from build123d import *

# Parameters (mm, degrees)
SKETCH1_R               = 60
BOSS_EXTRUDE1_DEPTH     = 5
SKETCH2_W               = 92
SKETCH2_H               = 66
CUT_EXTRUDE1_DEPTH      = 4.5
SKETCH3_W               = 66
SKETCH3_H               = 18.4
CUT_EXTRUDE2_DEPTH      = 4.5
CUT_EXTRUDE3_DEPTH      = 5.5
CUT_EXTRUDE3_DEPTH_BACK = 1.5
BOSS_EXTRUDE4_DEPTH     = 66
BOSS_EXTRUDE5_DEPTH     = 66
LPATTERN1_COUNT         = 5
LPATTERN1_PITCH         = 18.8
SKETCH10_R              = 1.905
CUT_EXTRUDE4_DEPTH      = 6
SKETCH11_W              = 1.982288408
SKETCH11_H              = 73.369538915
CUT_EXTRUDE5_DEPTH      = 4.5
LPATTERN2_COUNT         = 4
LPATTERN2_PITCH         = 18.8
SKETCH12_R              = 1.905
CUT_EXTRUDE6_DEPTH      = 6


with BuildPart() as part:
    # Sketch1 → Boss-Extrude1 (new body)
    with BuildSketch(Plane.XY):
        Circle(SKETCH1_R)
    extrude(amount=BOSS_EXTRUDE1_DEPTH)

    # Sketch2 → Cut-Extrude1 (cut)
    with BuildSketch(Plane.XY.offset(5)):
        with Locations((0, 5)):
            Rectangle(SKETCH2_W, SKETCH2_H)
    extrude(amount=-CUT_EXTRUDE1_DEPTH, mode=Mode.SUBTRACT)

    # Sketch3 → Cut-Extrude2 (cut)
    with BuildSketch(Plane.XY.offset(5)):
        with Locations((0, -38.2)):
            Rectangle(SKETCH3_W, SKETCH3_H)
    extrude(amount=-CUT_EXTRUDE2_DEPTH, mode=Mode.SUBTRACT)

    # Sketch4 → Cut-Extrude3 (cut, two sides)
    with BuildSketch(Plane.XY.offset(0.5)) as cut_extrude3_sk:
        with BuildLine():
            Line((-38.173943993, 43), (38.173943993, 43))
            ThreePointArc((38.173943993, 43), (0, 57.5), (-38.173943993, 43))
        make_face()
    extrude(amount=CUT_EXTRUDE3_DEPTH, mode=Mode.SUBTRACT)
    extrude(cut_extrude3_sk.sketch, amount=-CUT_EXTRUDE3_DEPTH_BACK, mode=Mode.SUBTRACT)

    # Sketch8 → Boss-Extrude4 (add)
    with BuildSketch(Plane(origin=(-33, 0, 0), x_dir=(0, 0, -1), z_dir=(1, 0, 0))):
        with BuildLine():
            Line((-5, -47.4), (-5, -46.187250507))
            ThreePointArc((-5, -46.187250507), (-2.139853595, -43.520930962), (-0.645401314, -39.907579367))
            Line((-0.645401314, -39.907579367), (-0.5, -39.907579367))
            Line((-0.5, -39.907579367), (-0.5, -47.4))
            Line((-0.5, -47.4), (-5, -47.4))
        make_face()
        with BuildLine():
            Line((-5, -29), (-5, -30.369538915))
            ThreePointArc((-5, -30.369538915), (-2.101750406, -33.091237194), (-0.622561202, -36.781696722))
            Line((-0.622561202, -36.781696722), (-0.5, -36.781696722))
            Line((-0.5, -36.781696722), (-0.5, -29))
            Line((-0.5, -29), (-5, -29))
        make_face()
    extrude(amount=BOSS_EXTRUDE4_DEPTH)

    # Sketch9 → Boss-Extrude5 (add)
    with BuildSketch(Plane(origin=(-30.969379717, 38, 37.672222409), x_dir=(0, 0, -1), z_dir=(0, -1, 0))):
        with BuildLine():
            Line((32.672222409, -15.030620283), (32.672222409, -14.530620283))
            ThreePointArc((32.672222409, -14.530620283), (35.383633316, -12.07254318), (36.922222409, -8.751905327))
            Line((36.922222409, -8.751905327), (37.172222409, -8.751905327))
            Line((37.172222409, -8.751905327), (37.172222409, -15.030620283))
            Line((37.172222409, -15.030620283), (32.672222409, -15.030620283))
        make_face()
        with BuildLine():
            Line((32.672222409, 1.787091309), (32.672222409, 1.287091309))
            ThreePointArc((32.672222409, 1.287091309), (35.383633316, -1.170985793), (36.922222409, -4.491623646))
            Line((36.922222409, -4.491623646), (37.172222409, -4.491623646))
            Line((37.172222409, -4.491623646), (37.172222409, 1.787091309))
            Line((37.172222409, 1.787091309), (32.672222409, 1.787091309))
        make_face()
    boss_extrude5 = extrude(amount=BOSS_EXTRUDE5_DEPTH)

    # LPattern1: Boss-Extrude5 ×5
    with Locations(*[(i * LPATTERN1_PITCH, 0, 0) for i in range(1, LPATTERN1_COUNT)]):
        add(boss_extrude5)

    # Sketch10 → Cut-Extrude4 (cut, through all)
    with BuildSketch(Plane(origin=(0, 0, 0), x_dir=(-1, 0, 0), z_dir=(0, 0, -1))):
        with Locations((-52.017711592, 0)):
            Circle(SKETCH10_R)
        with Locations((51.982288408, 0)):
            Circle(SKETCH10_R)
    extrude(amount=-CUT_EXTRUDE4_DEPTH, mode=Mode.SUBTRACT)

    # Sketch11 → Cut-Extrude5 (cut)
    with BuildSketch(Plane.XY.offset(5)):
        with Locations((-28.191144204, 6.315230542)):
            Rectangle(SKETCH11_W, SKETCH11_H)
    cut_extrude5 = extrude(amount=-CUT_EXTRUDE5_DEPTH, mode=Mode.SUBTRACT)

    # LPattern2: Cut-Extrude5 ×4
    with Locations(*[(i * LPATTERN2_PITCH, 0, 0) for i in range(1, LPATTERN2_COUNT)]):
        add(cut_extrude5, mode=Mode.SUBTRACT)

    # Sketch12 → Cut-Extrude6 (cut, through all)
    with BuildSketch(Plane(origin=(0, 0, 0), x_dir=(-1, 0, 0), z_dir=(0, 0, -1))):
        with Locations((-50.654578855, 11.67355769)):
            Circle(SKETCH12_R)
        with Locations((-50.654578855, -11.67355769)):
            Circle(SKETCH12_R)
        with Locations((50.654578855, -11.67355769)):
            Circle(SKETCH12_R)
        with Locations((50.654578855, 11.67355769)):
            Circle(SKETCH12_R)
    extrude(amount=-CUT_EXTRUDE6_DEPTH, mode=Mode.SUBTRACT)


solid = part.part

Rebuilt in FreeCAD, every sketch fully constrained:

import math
import FreeCAD as App
import Part
import Sketcher
Q = App.Units.Quantity

doc = App.newDocument("Part")
body = doc.addObject("PartDesign::Body", "Body")

# Sketch on XY plane
sketch1 = doc.addObject("Sketcher::SketchObject", "Sketch")
body.addObject(sketch1)
sketch1.AttachmentSupport = (doc.XY_Plane, [""])
sketch1.MapMode = "FlatFace"
sketch1.addGeometry(Part.Circle(App.Vector(0, 0, 0), App.Vector(0, 0, 1), 60), False)
sketch1.addConstraint([
    Sketcher.Constraint("Coincident", 0, 3, -1, 1),
    Sketcher.Constraint("Diameter", 0, Q("120 mm")),
])
pad1 = doc.addObject("PartDesign::Pad", "Pad")
body.addObject(pad1)
pad1.Profile = sketch1
pad1.Length = 5

# Sketch on XY plane
sketch2 = doc.addObject("Sketcher::SketchObject", "Sketch001")
body.addObject(sketch2)
sketch2.AttachmentSupport = (doc.XY_Plane, [""])
sketch2.MapMode = "FlatFace"
sketch2.AttachmentOffset = App.Placement(App.Vector(0, 0, 5), App.Rotation())
sketch2.addGeometry([
    Part.LineSegment(App.Vector(-46, 38, 0), App.Vector(-46, -28, 0)),
    Part.LineSegment(App.Vector(-46, -28, 0), App.Vector(46, -28, 0)),
    Part.LineSegment(App.Vector(46, -28, 0), App.Vector(46, 38, 0)),
    Part.LineSegment(App.Vector(46, 38, 0), App.Vector(-46, 38, 0)),
], False)
sketch2.addConstraint([
    Sketcher.Constraint("Coincident", 0, 2, 1, 1),
    Sketcher.Constraint("Coincident", 1, 2, 2, 1),
    Sketcher.Constraint("Coincident", 2, 2, 3, 1),
    Sketcher.Constraint("Coincident", 3, 2, 0, 1),
    Sketcher.Constraint("Vertical", 0),
    Sketcher.Constraint("Horizontal", 1),
    Sketcher.Constraint("Vertical", 2),
    Sketcher.Constraint("Horizontal", 3),
    Sketcher.Constraint("DistanceX", 1, 1, 1, 2, Q("92 mm")),
    Sketcher.Constraint("DistanceY", 0, 2, 0, 1, Q("66 mm")),
    Sketcher.Constraint("DistanceX", 0, 2, -1, 1, Q("46 mm")),
    Sketcher.Constraint("DistanceY", 0, 2, -1, 1, Q("28 mm")),
])
pocket1 = doc.addObject("PartDesign::Pocket", "Pocket")
body.addObject(pocket1)
pocket1.Profile = sketch2
pocket1.Length = 4.5

# Sketch on XY plane
sketch3 = doc.addObject("Sketcher::SketchObject", "Sketch002")
body.addObject(sketch3)
sketch3.AttachmentSupport = (doc.XY_Plane, [""])
sketch3.MapMode = "FlatFace"
sketch3.AttachmentOffset = App.Placement(App.Vector(0, 0, 5), App.Rotation())
sketch3.addGeometry([
    Part.LineSegment(App.Vector(-33, -29, 0), App.Vector(-33, -47, 0)),
    Part.LineSegment(App.Vector(-33, -47, 0), App.Vector(33, -47, 0)),
    Part.LineSegment(App.Vector(33, -47, 0), App.Vector(33, -29, 0)),
    Part.LineSegment(App.Vector(33, -29, 0), App.Vector(-33, -29, 0)),
], False)
sketch3.addConstraint([
    Sketcher.Constraint("Coincident", 0, 2, 1, 1),
    Sketcher.Constraint("Coincident", 1, 2, 2, 1),
    Sketcher.Constraint("Coincident", 2, 2, 3, 1),
    Sketcher.Constraint("Coincident", 3, 2, 0, 1),
    Sketcher.Constraint("Vertical", 0),
    Sketcher.Constraint("Horizontal", 1),
    Sketcher.Constraint("Vertical", 2),
    Sketcher.Constraint("Horizontal", 3),
    Sketcher.Constraint("DistanceX", 1, 1, 1, 2, Q("66 mm")),
    Sketcher.Constraint("DistanceY", 0, 2, 0, 1, Q("18.4 mm")),
    Sketcher.Constraint("DistanceX", 0, 2, -1, 1, Q("33 mm")),
    Sketcher.Constraint("DistanceY", 2, 2, -1, 1, Q("29 mm")),
])
pocket2 = doc.addObject("PartDesign::Pocket", "Pocket001")
body.addObject(pocket2)
pocket2.Profile = sketch3
pocket2.Length = 4.5

# Sketch on XY plane
sketch4 = doc.addObject("Sketcher::SketchObject", "Sketch003")
body.addObject(sketch4)
sketch4.AttachmentSupport = (doc.XY_Plane, [""])
sketch4.MapMode = "FlatFace"
sketch4.AttachmentOffset = App.Placement(App.Vector(0, 0, 0.5), App.Rotation())
sketch4.addGeometry([
    Part.LineSegment(App.Vector(-38, 43, 0), App.Vector(38, 43, 0)),
    Part.ArcOfCircle(Part.Circle(App.Vector(0, 0, 0), App.Vector(0, 0, 1), 57), math.radians(48), math.radians(132)),
], False)
sketch4.addConstraint([
    Sketcher.Constraint("Coincident", 0, 1, 1, 2),
    Sketcher.Constraint("Coincident", 1, 1, 0, 2),
    Sketcher.Constraint("Horizontal", 0),
    Sketcher.Constraint("Coincident", 1, 3, -1, 1),
    Sketcher.Constraint("Radius", 1, Q("57.5 mm")),
    Sketcher.Constraint("DistanceY", -1, 1, 0, 1, Q("43 mm")),
])
pocket3 = doc.addObject("PartDesign::Pocket", "Pocket002")
body.addObject(pocket3)
pocket3.Profile = sketch4
pocket3.Type = "ThroughAll"
pocket3.Midplane = True

# Sketch on YZ plane
sketch5 = doc.addObject("Sketcher::SketchObject", "Sketch004")
body.addObject(sketch5)
sketch5.AttachmentSupport = (doc.YZ_Plane, [""])
sketch5.MapMode = "FlatFace"
sketch5.AttachmentOffset = App.Placement(App.Vector(0, 0, -33), App.Rotation())
sketch5.addGeometry([
    Part.LineSegment(App.Vector(-46.19, 5, 0), App.Vector(-47.4, 5, 0)),  # 0
    Part.LineSegment(App.Vector(-47.4, 5, 0), App.Vector(-47.4, 0.5, 0)),  # 1
    Part.LineSegment(App.Vector(-47.4, 0.5, 0), App.Vector(-39.91, 0.5, 0)),  # 2
    Part.LineSegment(App.Vector(-39.91, 0.5, 0), App.Vector(-39.91, 0.65, 0)),  # 3
    Part.ArcOfCircle(Part.Circle(App.Vector(-38.28, 9.7, 0), App.Vector(0, 0, 1), 9.2), math.radians(-149), math.radians(-100)),  # 4
    Part.LineSegment(App.Vector(-29, 5, 0), App.Vector(-30.37, 5, 0)),  # 5
    Part.ArcOfCircle(Part.Circle(App.Vector(-38.28, 9.7, 0), App.Vector(0, 0, 1), 9.2), math.radians(-81), math.radians(-31)),  # 6
    Part.LineSegment(App.Vector(-36.78, 0.62, 0), App.Vector(-36.78, 0.5, 0)),  # 7
    Part.LineSegment(App.Vector(-36.78, 0.5, 0), App.Vector(-29, 0.5, 0)),  # 8
    Part.LineSegment(App.Vector(-29, 0.5, 0), App.Vector(-29, 5, 0)),  # 9
], False)
sketch5.addConstraint([
    Sketcher.Constraint("Coincident", 0, 2, 1, 1),
    Sketcher.Constraint("Coincident", 1, 2, 2, 1),
    Sketcher.Constraint("Coincident", 2, 2, 3, 1),
    Sketcher.Constraint("Coincident", 3, 2, 4, 2),
    Sketcher.Constraint("Coincident", 4, 1, 0, 1),
    Sketcher.Constraint("Coincident", 5, 2, 6, 2),
    Sketcher.Constraint("Coincident", 6, 1, 7, 1),
    Sketcher.Constraint("Coincident", 7, 2, 8, 1),
    Sketcher.Constraint("Coincident", 8, 2, 9, 1),
    Sketcher.Constraint("Coincident", 9, 2, 5, 1),
    Sketcher.Constraint("Horizontal", 0),
    Sketcher.Constraint("Vertical", 1),
    Sketcher.Constraint("Horizontal", 2),
    Sketcher.Constraint("Vertical", 3),
    Sketcher.Constraint("Horizontal", 5),
    Sketcher.Constraint("Vertical", 7),
    Sketcher.Constraint("Horizontal", 8),
    Sketcher.Constraint("Vertical", 9),
    Sketcher.Constraint("Coincident", 6, 3, 4, 3),
    Sketcher.Constraint("Equal", 4, 6),
    Sketcher.Constraint("Horizontal", 4, 1, 5, 2),
    Sketcher.Constraint("Horizontal", 2, 2, 7, 2),
    Sketcher.Constraint("Radius", 4, Q("9.2 mm")),
    Sketcher.Constraint("DistanceY", 1, 2, 1, 1, Q("4.5 mm")),
    Sketcher.Constraint("DistanceY", -1, 1, 0, 2, Q("5 mm")),
    Sketcher.Constraint("DistanceX", 8, 2, -1, 1, Q("29 mm")),
    Sketcher.Constraint("DistanceY", -1, 1, 4, 3, Q("9.7 mm")),
    Sketcher.Constraint("DistanceX", 0, 2, -1, 1, Q("47.4 mm")),
    Sketcher.Constraint("DistanceY", 3, 1, 3, 2, Q("0.145401 mm")),
    Sketcher.Constraint("DistanceX", 0, 2, 0, 1, Q("1.212749 mm")),
    Sketcher.Constraint("DistanceY", 7, 2, 7, 1, Q("0.122561 mm")),
])
pad2 = doc.addObject("PartDesign::Pad", "Pad001")
body.addObject(pad2)
pad2.Profile = sketch5
pad2.Length = 66

# Sketch on XZ plane
sketch6 = doc.addObject("Sketcher::SketchObject", "Sketch005")
body.addObject(sketch6)
sketch6.AttachmentSupport = (doc.XZ_Plane, [""])
sketch6.MapMode = "FlatFace"
sketch6.AttachmentOffset = App.Placement(App.Vector(0, 0, -38), App.Rotation())
sketch6.addGeometry([
    Part.LineSegment(App.Vector(-45.5, 5, 0), App.Vector(-46, 5, 0)),  # 0
    Part.LineSegment(App.Vector(-46, 5, 0), App.Vector(-46, 0.5, 0)),  # 1
    Part.LineSegment(App.Vector(-46, 0.5, 0), App.Vector(-39.72, 0.5, 0)),  # 2
    Part.LineSegment(App.Vector(-39.72, 0.5, 0), App.Vector(-39.72, 0.75, 0)),  # 3
    Part.ArcOfCircle(Part.Circle(App.Vector(-37.59, 9.7, 0), App.Vector(0, 0, 1), 9.2), math.radians(-149), math.radians(-103)),  # 4
    Part.LineSegment(App.Vector(-29.18, 5, 0), App.Vector(-29.68, 5, 0)),  # 5
    Part.ArcOfCircle(Part.Circle(App.Vector(-37.59, 9.7, 0), App.Vector(0, 0, 1), 9.2), math.radians(-77), math.radians(-31)),  # 6
    Part.LineSegment(App.Vector(-35.46, 0.75, 0), App.Vector(-35.46, 0.5, 0)),  # 7
    Part.LineSegment(App.Vector(-35.46, 0.5, 0), App.Vector(-29.18, 0.5, 0)),  # 8
    Part.LineSegment(App.Vector(-29.18, 0.5, 0), App.Vector(-29.18, 5, 0)),  # 9
], False)
sketch6.addConstraint([
    Sketcher.Constraint("Coincident", 0, 2, 1, 1),
    Sketcher.Constraint("Coincident", 1, 2, 2, 1),
    Sketcher.Constraint("Coincident", 2, 2, 3, 1),
    Sketcher.Constraint("Coincident", 3, 2, 4, 2),
    Sketcher.Constraint("Coincident", 4, 1, 0, 1),
    Sketcher.Constraint("Coincident", 5, 2, 6, 2),
    Sketcher.Constraint("Coincident", 6, 1, 7, 1),
    Sketcher.Constraint("Coincident", 7, 2, 8, 1),
    Sketcher.Constraint("Coincident", 8, 2, 9, 1),
    Sketcher.Constraint("Coincident", 9, 2, 5, 1),
    Sketcher.Constraint("Horizontal", 0),
    Sketcher.Constraint("Vertical", 1),
    Sketcher.Constraint("Horizontal", 2),
    Sketcher.Constraint("Vertical", 3),
    Sketcher.Constraint("Horizontal", 5),
    Sketcher.Constraint("Vertical", 7),
    Sketcher.Constraint("Horizontal", 8),
    Sketcher.Constraint("Vertical", 9),
    Sketcher.Constraint("Coincident", 6, 3, 4, 3),
    Sketcher.Constraint("Equal", 4, 6),
    Sketcher.Constraint("Horizontal", 4, 1, 5, 2),
    Sketcher.Constraint("Horizontal", 3, 2, 6, 1),
    Sketcher.Constraint("Horizontal", 2, 2, 7, 2),
    Sketcher.Constraint("Equal", 0, 5),
    Sketcher.Constraint("Radius", 4, Q("9.2 mm")),
    Sketcher.Constraint("DistanceX", 0, 2, 0, 1, Q("0.5 mm")),
    Sketcher.Constraint("DistanceY", 1, 2, 1, 1, Q("4.5 mm")),
    Sketcher.Constraint("DistanceX", 0, 2, -1, 1, Q("46 mm")),
    Sketcher.Constraint("DistanceY", -1, 1, 0, 2, Q("5 mm")),
    Sketcher.Constraint("DistanceY", 3, 1, 3, 2, Q("0.25 mm")),
    Sketcher.Constraint("DistanceY", -1, 1, 4, 3, Q("9.7 mm")),
])
pad3 = doc.addObject("PartDesign::Pad", "Pad002")
body.addObject(pad3)
pad3.Profile = sketch6
pad3.Length = 66
doc.recompute()

linearpattern = doc.addObject("PartDesign::LinearPattern", "LinearPattern")
body.addObject(linearpattern)
linearpattern.Originals = [pad3]
linearpattern.Direction = (doc.X_Axis, [""])
linearpattern.Mode = "offset"
linearpattern.Offset = 18.8
linearpattern.Occurrences = 5
body.Tip = linearpattern

# Sketch on XY plane
sketch7 = doc.addObject("Sketcher::SketchObject", "Sketch006")
body.addObject(sketch7)
sketch7.AttachmentSupport = (doc.XY_Plane, [""])
sketch7.MapMode = "FlatFace"
sketch7.addGeometry([
    Part.Circle(App.Vector(52, 0, 0), App.Vector(0, 0, 1), 1.9),
    Part.Circle(App.Vector(-52, 0, 0), App.Vector(0, 0, 1), 1.9),
], False)
sketch7.addConstraint([
    Sketcher.Constraint("Equal", 0, 1),
    Sketcher.Constraint("PointOnObject", 0, 3, -1),
    Sketcher.Constraint("PointOnObject", 1, 3, -1),
    Sketcher.Constraint("Diameter", 0, Q("3.81 mm")),
    Sketcher.Constraint("DistanceX", 1, 3, 0, 3, Q("104 mm")),
    Sketcher.Constraint("DistanceX", -1, 1, 0, 3, Q("52.017712 mm")),
])
pocket4 = doc.addObject("PartDesign::Pocket", "Pocket003")
body.addObject(pocket4)
pocket4.Profile = sketch7
pocket4.Type = "ThroughAll"
pocket4.Reversed = True

# Sketch on XY plane
sketch8 = doc.addObject("Sketcher::SketchObject", "Sketch007")
body.addObject(sketch8)
sketch8.AttachmentSupport = (doc.XY_Plane, [""])
sketch8.MapMode = "FlatFace"
sketch8.AttachmentOffset = App.Placement(App.Vector(0, 0, 5), App.Rotation())
sketch8.addGeometry([
    Part.LineSegment(App.Vector(-29.2, 43, 0), App.Vector(-29.2, -30.4, 0)),
    Part.LineSegment(App.Vector(-29.2, -30.4, 0), App.Vector(-27.2, -30.4, 0)),
    Part.LineSegment(App.Vector(-27.2, -30.4, 0), App.Vector(-27.2, 43, 0)),
    Part.LineSegment(App.Vector(-27.2, 43, 0), App.Vector(-29.2, 43, 0)),
], False)
sketch8.addConstraint([
    Sketcher.Constraint("Coincident", 0, 2, 1, 1),
    Sketcher.Constraint("Coincident", 1, 2, 2, 1),
    Sketcher.Constraint("Coincident", 2, 2, 3, 1),
    Sketcher.Constraint("Coincident", 3, 2, 0, 1),
    Sketcher.Constraint("Vertical", 0),
    Sketcher.Constraint("Horizontal", 1),
    Sketcher.Constraint("Vertical", 2),
    Sketcher.Constraint("Horizontal", 3),
    Sketcher.Constraint("DistanceY", -1, 1, 2, 2, Q("43 mm")),
    Sketcher.Constraint("DistanceX", 1, 2, -1, 1, Q("27.2 mm")),
    Sketcher.Constraint("DistanceX", 1, 1, 1, 2, Q("1.982288 mm")),
    Sketcher.Constraint("DistanceY", 0, 2, 0, 1, Q("73.369539 mm")),
])
pocket5 = doc.addObject("PartDesign::Pocket", "Pocket004")
body.addObject(pocket5)
pocket5.Profile = sketch8
pocket5.Length = 4.5
doc.recompute()

linearpattern2 = doc.addObject("PartDesign::LinearPattern", "LinearPattern001")
body.addObject(linearpattern2)
linearpattern2.Originals = [pocket5]
linearpattern2.Direction = (doc.X_Axis, [""])
linearpattern2.Mode = "offset"
linearpattern2.Offset = 18.8
linearpattern2.Occurrences = 4
body.Tip = linearpattern2

# Sketch on XY plane
sketch9 = doc.addObject("Sketcher::SketchObject", "Sketch008")
body.addObject(sketch9)
sketch9.AttachmentSupport = (doc.XY_Plane, [""])
sketch9.MapMode = "FlatFace"
sketch9.addGeometry([
    Part.Circle(App.Vector(50.7, 11.7, 0), App.Vector(0, 0, 1), 1.9),
    Part.Circle(App.Vector(50.7, -11.7, 0), App.Vector(0, 0, 1), 1.9),
    Part.Circle(App.Vector(-50.7, -11.7, 0), App.Vector(0, 0, 1), 1.9),
    Part.Circle(App.Vector(-50.7, 11.7, 0), App.Vector(0, 0, 1), 1.9),
], False)
sketch9.addConstraint([
    Sketcher.Constraint("Equal", 0, 1),
    Sketcher.Constraint("Equal", 1, 2),
    Sketcher.Constraint("Equal", 2, 3),
    Sketcher.Constraint("Symmetric", 0, 3, 2, 3, -1, 1),
    Sketcher.Constraint("Symmetric", 1, 3, 3, 3, -1, 1),
    Sketcher.Constraint("Symmetric", 1, 3, 2, 3, -2),
    Sketcher.Constraint("Diameter", 0, Q("3.81 mm")),
    Sketcher.Constraint("DistanceX", -1, 1, 0, 3, Q("50.654579 mm")),
    Sketcher.Constraint("DistanceY", -1, 1, 0, 3, Q("11.673558 mm")),
])
pocket6 = doc.addObject("PartDesign::Pocket", "Pocket005")
body.addObject(pocket6)
pocket6.Profile = sketch9
pocket6.Type = "ThroughAll"
pocket6.Reversed = True

doc.recompute()
